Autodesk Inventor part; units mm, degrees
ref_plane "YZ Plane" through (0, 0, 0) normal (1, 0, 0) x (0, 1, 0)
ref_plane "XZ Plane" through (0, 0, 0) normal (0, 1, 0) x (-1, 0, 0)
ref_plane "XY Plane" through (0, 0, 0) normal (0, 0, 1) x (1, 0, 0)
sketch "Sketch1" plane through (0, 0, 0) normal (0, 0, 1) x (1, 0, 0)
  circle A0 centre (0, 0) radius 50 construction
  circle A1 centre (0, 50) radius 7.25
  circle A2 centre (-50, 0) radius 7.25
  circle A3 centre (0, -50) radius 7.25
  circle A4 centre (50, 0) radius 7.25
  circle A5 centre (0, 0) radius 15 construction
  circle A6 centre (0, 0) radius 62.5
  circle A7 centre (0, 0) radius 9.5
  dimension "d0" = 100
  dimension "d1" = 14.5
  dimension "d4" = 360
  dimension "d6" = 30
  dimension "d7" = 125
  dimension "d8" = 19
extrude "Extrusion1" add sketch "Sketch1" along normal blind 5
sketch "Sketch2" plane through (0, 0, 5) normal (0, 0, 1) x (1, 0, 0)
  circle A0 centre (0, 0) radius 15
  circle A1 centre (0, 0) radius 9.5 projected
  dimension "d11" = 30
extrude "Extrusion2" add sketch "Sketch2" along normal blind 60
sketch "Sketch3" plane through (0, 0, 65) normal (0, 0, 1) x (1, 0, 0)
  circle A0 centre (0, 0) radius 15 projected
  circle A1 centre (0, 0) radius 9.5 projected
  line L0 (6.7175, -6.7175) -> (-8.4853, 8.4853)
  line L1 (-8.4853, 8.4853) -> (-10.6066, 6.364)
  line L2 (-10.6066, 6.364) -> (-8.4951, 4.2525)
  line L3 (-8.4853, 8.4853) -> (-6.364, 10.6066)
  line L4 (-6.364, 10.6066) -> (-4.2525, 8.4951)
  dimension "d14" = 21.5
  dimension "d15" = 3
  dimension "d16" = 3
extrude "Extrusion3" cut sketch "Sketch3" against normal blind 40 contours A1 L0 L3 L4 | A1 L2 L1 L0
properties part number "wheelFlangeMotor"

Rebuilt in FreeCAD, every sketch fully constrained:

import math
import FreeCAD as App
import Part
import Sketcher
Q = App.Units.Quantity

doc = App.newDocument("Part")
body = doc.addObject("PartDesign::Body", "Body")

# Sketch on XY plane
sketch1 = doc.addObject("Sketcher::SketchObject", "Sketch")
body.addObject(sketch1)
sketch1.AttachmentSupport = (doc.XY_Plane, [""])
sketch1.MapMode = "FlatFace"
sketch1.addGeometry(Part.Circle(App.Vector(0, 0, 0), App.Vector(0, 0, 1), 62), False)
sketch1.addGeometry(Part.Circle(App.Vector(0, -50, 0), App.Vector(0, 0, 1), 7), False)
sketch1.addGeometry(Part.Circle(App.Vector(-50, 0, 0), App.Vector(0, 0, 1), 7), False)
sketch1.addGeometry(Part.Circle(App.Vector(0, 0, 0), App.Vector(0, 0, 1), 10), False)
sketch1.addGeometry(Part.Circle(App.Vector(50, 0, 0), App.Vector(0, 0, 1), 7), False)
sketch1.addGeometry(Part.Circle(App.Vector(0, 50, 0), App.Vector(0, 0, 1), 7), False)
sketch1.addConstraint(Sketcher.Constraint("Coincident", 0, 3, -1, 1))
sketch1.addConstraint(Sketcher.Constraint("Coincident", 3, 3, -1, 1))
sketch1.addConstraint(Sketcher.Constraint("Equal", 1, 2))
sketch1.addConstraint(Sketcher.Constraint("Equal", 2, 4))
sketch1.addConstraint(Sketcher.Constraint("Equal", 4, 5))
sketch1.addConstraint(Sketcher.Constraint("Symmetric", 2, 3, 4, 3, -1, 1))
sketch1.addConstraint(Sketcher.Constraint("Symmetric", 1, 3, 5, 3, -1, 1))
sketch1.addConstraint(Sketcher.Constraint("PointOnObject", 1, 3, -2))
sketch1.addConstraint(Sketcher.Constraint("PointOnObject", 2, 3, -1))
sketch1.addConstraint(Sketcher.Constraint("Diameter", 0, 125.0))
sketch1.addConstraint(Sketcher.Constraint("Diameter", 3, 19.0))
sketch1.addConstraint(Sketcher.Constraint("Diameter", 1, 14.5))
sketch1.addConstraint(Sketcher.Constraint("DistanceX", 2, 3, 4, 3, 100.0))
sketch1.addConstraint(Sketcher.Constraint("DistanceY", 1, 3, 5, 3, 100.0))
pad1 = doc.addObject("PartDesign::Pad", "Pad")
body.addObject(pad1)
pad1.Profile = sketch1
pad1.Length = 5

# Sketch on XY plane
sketch2 = doc.addObject("Sketcher::SketchObject", "Sketch001")
body.addObject(sketch2)
sketch2.AttachmentSupport = (doc.XY_Plane, [""])
sketch2.MapMode = "FlatFace"
sketch2.AttachmentOffset = App.Placement(App.Vector(0, 0, 5), App.Rotation())
sketch2.addGeometry(Part.Circle(App.Vector(0, 0, 0), App.Vector(0, 0, 1), 15), False)
sketch2.addGeometry(Part.Circle(App.Vector(0, 0, 0), App.Vector(0, 0, 1), 10), False)
sketch2.addConstraint(Sketcher.Constraint("Coincident", 0, 3, -1, 1))
sketch2.addConstraint(Sketcher.Constraint("Coincident", 1, 3, -1, 1))
sketch2.addConstraint(Sketcher.Constraint("Diameter", 0, 30.0))
sketch2.addConstraint(Sketcher.Constraint("Diameter", 1, 19.0))
pad2 = doc.addObject("PartDesign::Pad", "Pad001")
body.addObject(pad2)
pad2.Profile = sketch2
pad2.Length = 60

# Sketch on XY plane
sketch3 = doc.addObject("Sketcher::SketchObject", "Sketch002")
body.addObject(sketch3)
sketch3.AttachmentSupport = (doc.XY_Plane, [""])
sketch3.MapMode = "FlatFace"
sketch3.AttachmentOffset = App.Placement(App.Vector(0, 0, 65), App.Rotation())
sketch3.addGeometry(Part.LineSegment(App.Vector(-4.3, 8.5, 0), App.Vector(-6.4, 10.6, 0)), False)
sketch3.addGeometry(Part.LineSegment(App.Vector(-6.4, 10.6, 0), App.Vector(-10.6, 6.4, 0)), False)
sketch3.addGeometry(Part.LineSegment(App.Vector(-10.6, 6.4, 0), App.Vector(-8.5, 4.3, 0)), False)
sketch3.addGeometry(Part.ArcOfCircle(Part.Circle(App.Vector(0, 0, 0), App.Vector(0, 0, 1), 9.5), math.radians(117), math.radians(153)), False)
sketch3.addConstraint(Sketcher.Constraint("Coincident", 0, 2, 1, 1))
sketch3.addConstraint(Sketcher.Constraint("Coincident", 1, 2, 2, 1))
sketch3.addConstraint(Sketcher.Constraint("Coincident", 2, 2, 3, 2))
sketch3.addConstraint(Sketcher.Constraint("Coincident", 3, 1, 0, 1))
sketch3.addConstraint(Sketcher.Constraint("Coincident", 3, 3, -1, 1))
sketch3.addConstraint(Sketcher.Constraint("Perpendicular", 0, 1))
sketch3.addConstraint(Sketcher.Constraint("Perpendicular", 1, 2))
sketch3.addConstraint(Sketcher.Constraint("Equal", 0, 2))
sketch3.addConstraint(Sketcher.Constraint("Radius", 3, 9.5))
sketch3.addConstraint(Sketcher.Constraint("Angle", 0, Q("135 deg")))
sketch3.addConstraint(Sketcher.Constraint("Distance", 1, 6.0))
sketch3.addConstraint(Sketcher.Constraint("Distance", 0, 2.986))
pocket1 = doc.addObject("PartDesign::Pocket", "Pocket")
body.addObject(pocket1)
pocket1.Profile = sketch3
pocket1.Length = 40

doc.recompute()
